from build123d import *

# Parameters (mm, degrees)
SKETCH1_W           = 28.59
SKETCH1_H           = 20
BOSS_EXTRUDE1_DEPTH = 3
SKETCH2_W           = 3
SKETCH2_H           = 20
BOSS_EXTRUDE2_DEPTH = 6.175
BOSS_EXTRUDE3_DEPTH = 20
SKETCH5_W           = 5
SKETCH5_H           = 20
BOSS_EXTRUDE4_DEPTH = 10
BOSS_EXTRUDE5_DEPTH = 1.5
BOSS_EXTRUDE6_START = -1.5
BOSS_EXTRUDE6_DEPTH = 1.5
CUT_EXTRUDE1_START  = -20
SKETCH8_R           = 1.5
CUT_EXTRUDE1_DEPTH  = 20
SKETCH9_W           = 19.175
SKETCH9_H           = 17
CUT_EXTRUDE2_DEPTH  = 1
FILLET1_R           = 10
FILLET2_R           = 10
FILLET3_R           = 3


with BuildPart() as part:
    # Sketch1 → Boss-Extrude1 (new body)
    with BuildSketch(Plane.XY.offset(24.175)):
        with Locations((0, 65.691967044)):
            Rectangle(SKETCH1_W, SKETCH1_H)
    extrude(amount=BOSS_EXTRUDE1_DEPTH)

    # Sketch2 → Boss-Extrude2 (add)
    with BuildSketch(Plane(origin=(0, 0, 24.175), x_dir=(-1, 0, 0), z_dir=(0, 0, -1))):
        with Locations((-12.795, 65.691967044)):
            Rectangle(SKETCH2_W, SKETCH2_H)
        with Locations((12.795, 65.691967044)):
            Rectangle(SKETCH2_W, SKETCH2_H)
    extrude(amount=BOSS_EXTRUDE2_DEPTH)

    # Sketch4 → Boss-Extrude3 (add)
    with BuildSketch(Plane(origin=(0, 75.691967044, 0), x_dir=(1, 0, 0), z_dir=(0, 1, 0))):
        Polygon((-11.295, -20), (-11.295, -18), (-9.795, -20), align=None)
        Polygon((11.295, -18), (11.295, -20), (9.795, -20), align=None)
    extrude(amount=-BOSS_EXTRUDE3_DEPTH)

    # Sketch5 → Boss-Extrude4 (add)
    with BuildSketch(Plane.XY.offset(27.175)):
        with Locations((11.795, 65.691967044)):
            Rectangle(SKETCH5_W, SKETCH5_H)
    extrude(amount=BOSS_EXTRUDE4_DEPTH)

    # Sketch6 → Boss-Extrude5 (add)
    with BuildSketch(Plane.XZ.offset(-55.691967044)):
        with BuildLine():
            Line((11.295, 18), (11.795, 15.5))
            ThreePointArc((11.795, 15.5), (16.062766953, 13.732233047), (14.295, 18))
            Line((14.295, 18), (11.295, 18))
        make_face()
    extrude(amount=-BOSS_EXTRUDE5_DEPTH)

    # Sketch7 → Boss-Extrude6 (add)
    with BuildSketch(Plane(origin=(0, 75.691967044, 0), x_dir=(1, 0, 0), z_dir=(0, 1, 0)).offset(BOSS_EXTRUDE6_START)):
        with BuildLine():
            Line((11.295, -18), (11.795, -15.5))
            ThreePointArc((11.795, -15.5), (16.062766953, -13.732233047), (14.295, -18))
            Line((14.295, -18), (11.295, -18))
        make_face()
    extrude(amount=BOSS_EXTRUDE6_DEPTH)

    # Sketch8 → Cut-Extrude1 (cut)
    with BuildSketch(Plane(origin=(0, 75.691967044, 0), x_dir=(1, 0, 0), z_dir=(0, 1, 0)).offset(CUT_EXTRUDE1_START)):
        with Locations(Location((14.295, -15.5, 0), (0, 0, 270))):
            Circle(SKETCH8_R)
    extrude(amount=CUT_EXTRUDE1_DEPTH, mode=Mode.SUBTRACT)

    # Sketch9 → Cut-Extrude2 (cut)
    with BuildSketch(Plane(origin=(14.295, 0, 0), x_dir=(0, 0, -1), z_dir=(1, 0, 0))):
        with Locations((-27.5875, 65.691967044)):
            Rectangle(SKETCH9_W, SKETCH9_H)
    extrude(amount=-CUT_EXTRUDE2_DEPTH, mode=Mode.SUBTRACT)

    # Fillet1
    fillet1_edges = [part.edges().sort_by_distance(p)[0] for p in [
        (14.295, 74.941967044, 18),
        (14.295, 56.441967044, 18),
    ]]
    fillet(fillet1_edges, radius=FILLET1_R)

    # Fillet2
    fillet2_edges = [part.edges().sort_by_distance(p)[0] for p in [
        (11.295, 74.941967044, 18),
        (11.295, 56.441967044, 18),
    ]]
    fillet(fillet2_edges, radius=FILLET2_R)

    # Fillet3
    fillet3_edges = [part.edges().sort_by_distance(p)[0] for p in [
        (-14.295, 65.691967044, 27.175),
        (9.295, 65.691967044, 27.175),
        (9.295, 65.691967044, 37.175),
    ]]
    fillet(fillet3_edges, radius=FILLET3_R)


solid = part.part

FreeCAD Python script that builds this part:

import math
import FreeCAD as App
import Part
import Sketcher
from FreeCAD import Vector


def edges_at(feature, points):
    """Names of the edges that pass closest to the given points."""
    edges = feature.Shape.Edges
    near = lambda p: min(range(len(edges)), key=lambda i: edges[i].distToShape(Part.Vertex(*p))[0])
    return sorted({f"Edge{near(p) + 1}" for p in points})


def add_polygon(sketch, points):
    """Adds a closed chain of lines whose ends are joined by coincident constraints."""
    first, n = sketch.GeometryCount, len(points)
    for a, b in zip(points, points[1:] + points[:1]):
        sketch.addGeometry(Part.LineSegment(App.Vector(*a, 0), App.Vector(*b, 0)), False)
    for i in range(n):
        sketch.addConstraint(Sketcher.Constraint("Coincident", first + i, 2, first + (i + 1) % n, 1))

doc = App.newDocument("Part")
params = doc.addObject("Spreadsheet::Sheet", "Params")
for row, (alias, value) in enumerate([
    ("sketch1_height", "20 mm"),
    ("sketch1_width", "28.59 mm"),
    ("pad1_length", "3 mm"),
    ("sketch2_width", "3 mm"),
    ("sketch2_height", "20 mm"),
    ("pad2_length", "6.175 mm"),
    ("sketch3_height", "2 mm"),
    ("sketch3_width", "1.5 mm"),
    ("pad3_length", "20 mm"),
    ("sketch4_width", "5 mm"),
    ("sketch4_height", "20 mm"),
    ("pad4_length", "10 mm"),
    ("sketch5_radius", "2.5 mm"),
    ("sketch5_width", "3 mm"),
    ("pad5_length", "1.5 mm"),
    ("sketch6_radius", "2.5 mm"),
    ("sketch6_width", "3 mm"),
    ("pad6_length", "1.5 mm"),
    ("sketch7_diameter", "3 mm"),
    ("pocket1_length", "20 mm"),
    ("sketch8_width", "17 mm"),
    ("pocket2_length", "1 mm"),
    ("fillet_radius", "10 mm"),
    ("fillet2_radius", "10 mm"),
    ("fillet3_radius", "3 mm"),
], start=1):
    params.set(f"A{row}", alias)
    params.set(f"B{row}", "=" + value)
    params.setAlias(f"B{row}", alias)

body = doc.addObject("PartDesign::Body", "Body")

# Sketch on XY plane
sketch1 = doc.addObject("Sketcher::SketchObject", "Sketch")
body.addObject(sketch1)
sketch1.AttachmentSupport = (doc.XY_Plane, [""])
sketch1.MapMode = "FlatFace"
sketch1.AttachmentOffset = App.Placement(Vector(0, 0, 24.175), App.Rotation())
add_polygon(sketch1, [(-14, 76), (-14, 56), (14, 56), (14, 76)])  # lines 0-3
sketch1.addConstraint(Sketcher.Constraint("Vertical", 0))
sketch1.addConstraint(Sketcher.Constraint("Horizontal", 1))
sketch1.addConstraint(Sketcher.Constraint("Vertical", 2))
sketch1.addConstraint(Sketcher.Constraint("Horizontal", 3))
sketch1.addConstraint(Sketcher.Constraint("DistanceY", 0, 2, 0, 1, 20.0))
sketch1.addConstraint(Sketcher.Constraint("DistanceX", 1, 1, 1, 2, 28.59))
sketch1.addConstraint(Sketcher.Constraint("DistanceX", 0, 2, -1, 1, 14.295))
sketch1.addConstraint(Sketcher.Constraint("DistanceY", -1, 1, 0, 2, 55.691967))
sketch1.setExpression("Constraints[8]", "Params.sketch1_height")
sketch1.setExpression("Constraints[9]", "Params.sketch1_width")
pad1 = doc.addObject("PartDesign::Pad", "Pad")
body.addObject(pad1)
pad1.Profile = sketch1
pad1.setExpression("Length", "Params.pad1_length")

# Sketch on XY plane
sketch2 = doc.addObject("Sketcher::SketchObject", "Sketch001")
body.addObject(sketch2)
sketch2.AttachmentSupport = (doc.XY_Plane, [""])
sketch2.MapMode = "FlatFace"
sketch2.AttachmentOffset = App.Placement(Vector(0, 0, 24.175), App.Rotation())
add_polygon(sketch2, [(14.3, 75.7), (14.3, 55.7), (11.3, 55.7), (11.3, 75.7)])  # lines 0-3
add_polygon(sketch2, [(-11.3, 75.7), (-11.3, 55.7), (-14.3, 55.7), (-14.3, 75.7)])  # lines 4-7
sketch2.addConstraint(Sketcher.Constraint("Vertical", 0))
sketch2.addConstraint(Sketcher.Constraint("Horizontal", 1))
sketch2.addConstraint(Sketcher.Constraint("Vertical", 2))
sketch2.addConstraint(Sketcher.Constraint("Horizontal", 3))
sketch2.addConstraint(Sketcher.Constraint("Vertical", 4))
sketch2.addConstraint(Sketcher.Constraint("Horizontal", 5))
sketch2.addConstraint(Sketcher.Constraint("Vertical", 6))
sketch2.addConstraint(Sketcher.Constraint("Horizontal", 7))
sketch2.addConstraint(Sketcher.Constraint("Symmetric", 1, 2, 4, 2, -2))
sketch2.addConstraint(Sketcher.Constraint("Symmetric", 3, 2, 6, 2, -2))
sketch2.addConstraint(Sketcher.Constraint("DistanceX", 1, 2, 1, 1, 3.0))
sketch2.addConstraint(Sketcher.Constraint("DistanceY", 0, 2, 0, 1, 20.0))
sketch2.addConstraint(Sketcher.Constraint("DistanceX", 4, 2, 1, 2, 22.59))
sketch2.addConstraint(Sketcher.Constraint("DistanceY", -1, 1, 0, 2, 55.691967))
sketch2.setExpression("Constraints[18]", "Params.sketch2_width")
sketch2.setExpression("Constraints[19]", "Params.sketch2_height")
pad2 = doc.addObject("PartDesign::Pad", "Pad001")
body.addObject(pad2)
pad2.Profile = sketch2
pad2.setExpression("Length", "Params.pad2_length")
pad2.Reversed = True

# Sketch on XZ plane
sketch3 = doc.addObject("Sketcher::SketchObject", "Sketch002")
body.addObject(sketch3)
sketch3.AttachmentSupport = (doc.XZ_Plane, [""])
sketch3.MapMode = "FlatFace"
sketch3.AttachmentOffset = App.Placement(Vector(0, 0, -75.691967), App.Rotation())
add_polygon(sketch3, [(-11.3, 18), (-11.3, 20), (-9.8, 20)])  # lines 0-2
add_polygon(sketch3, [(11.3, 20), (11.3, 18), (9.8, 20)])  # lines 3-5
sketch3.addConstraint(Sketcher.Constraint("Vertical", 0))
sketch3.addConstraint(Sketcher.Constraint("Horizontal", 1))
sketch3.addConstraint(Sketcher.Constraint("Vertical", 3))
sketch3.addConstraint(Sketcher.Constraint("Horizontal", 5))
sketch3.addConstraint(Sketcher.Constraint("Symmetric", 2, 2, 3, 2, -2))
sketch3.addConstraint(Sketcher.Constraint("Symmetric", 1, 2, 4, 2, -2))
sketch3.addConstraint(Sketcher.Constraint("DistanceY", 0, 1, 0, 2, 2.0))
sketch3.addConstraint(Sketcher.Constraint("DistanceX", 1, 1, 1, 2, 1.5))
sketch3.addConstraint(Sketcher.Constraint("DistanceY", -1, 1, 0, 2, 20.0))
sketch3.addConstraint(Sketcher.Constraint("DistanceX", 1, 2, 3, 2, 21.09))
sketch3.setExpression("Constraints[12]", "Params.sketch3_height")
sketch3.setExpression("Constraints[13]", "Params.sketch3_width")
pad3 = doc.addObject("PartDesign::Pad", "Pad002")
body.addObject(pad3)
pad3.Profile = sketch3
pad3.setExpression("Length", "Params.pad3_length")

# Sketch on XY plane
sketch4 = doc.addObject("Sketcher::SketchObject", "Sketch003")
body.addObject(sketch4)
sketch4.AttachmentSupport = (doc.XY_Plane, [""])
sketch4.MapMode = "FlatFace"
sketch4.AttachmentOffset = App.Placement(Vector(0, 0, 27.175), App.Rotation())
add_polygon(sketch4, [(9, 76), (9, 56), (14, 56), (14, 76)])  # lines 0-3
sketch4.addConstraint(Sketcher.Constraint("Vertical", 0))
sketch4.addConstraint(Sketcher.Constraint("Horizontal", 1))
sketch4.addConstraint(Sketcher.Constraint("Vertical", 2))
sketch4.addConstraint(Sketcher.Constraint("Horizontal", 3))
sketch4.addConstraint(Sketcher.Constraint("DistanceX", 1, 1, 1, 2, 5.0))
sketch4.addConstraint(Sketcher.Constraint("DistanceY", 0, 2, 0, 1, 20.0))
sketch4.addConstraint(Sketcher.Constraint("DistanceX", -1, 1, 0, 2, 9.295))
sketch4.addConstraint(Sketcher.Constraint("DistanceY", -1, 1, 0, 2, 55.691967))
sketch4.setExpression("Constraints[8]", "Params.sketch4_width")
sketch4.setExpression("Constraints[9]", "Params.sketch4_height")
pad4 = doc.addObject("PartDesign::Pad", "Pad003")
body.addObject(pad4)
pad4.Profile = sketch4
pad4.setExpression("Length", "Params.pad4_length")

# Sketch on XZ plane
sketch5 = doc.addObject("Sketcher::SketchObject", "Sketch004")
body.addObject(sketch5)
sketch5.AttachmentSupport = (doc.XZ_Plane, [""])
sketch5.MapMode = "FlatFace"
sketch5.AttachmentOffset = App.Placement(Vector(0, 0, -55.691967), App.Rotation())
sketch5.addGeometry(Part.LineSegment(Vector(11.3, 18, 0), Vector(11.8, 15.5, 0)), False)
sketch5.addGeometry(Part.ArcOfCircle(Part.Circle(Vector(14.3, 15.5, 0), Vector(0, 0, 1), 2.5), math.radians(180), math.radians(450)), False)
sketch5.addGeometry(Part.LineSegment(Vector(14.3, 18, 0), Vector(11.3, 18, 0)), False)
sketch5.addConstraint(Sketcher.Constraint("Coincident", 0, 2, 1, 1))
sketch5.addConstraint(Sketcher.Constraint("Tangent", 1, 2, 2, 1))
sketch5.addConstraint(Sketcher.Constraint("Coincident", 2, 2, 0, 1))
sketch5.addConstraint(Sketcher.Constraint("Horizontal", 2))
sketch5.addConstraint(Sketcher.Constraint("Horizontal", 1, 3, 0, 2))
sketch5.addConstraint(Sketcher.Constraint("Radius", 1, 2.5))
sketch5.addConstraint(Sketcher.Constraint("DistanceX", 2, 2, 2, 1, 3.0))
sketch5.addConstraint(Sketcher.Constraint("DistanceY", -1, 1, 1, 2, 18.0))
sketch5.addConstraint(Sketcher.Constraint("DistanceX", -1, 1, 1, 3, 14.295))
sketch5.setExpression("Constraints[5]", "Params.sketch5_radius")
sketch5.setExpression("Constraints[6]", "Params.sketch5_width")
pad5 = doc.addObject("PartDesign::Pad", "Pad004")
body.addObject(pad5)
pad5.Profile = sketch5
pad5.setExpression("Length", "Params.pad5_length")
pad5.Reversed = True

# Sketch on XZ plane
sketch6 = doc.addObject("Sketcher::SketchObject", "Sketch005")
body.addObject(sketch6)
sketch6.AttachmentSupport = (doc.XZ_Plane, [""])
sketch6.MapMode = "FlatFace"
sketch6.AttachmentOffset = App.Placement(Vector(0, 0, -74.191967), App.Rotation())
sketch6.addGeometry(Part.LineSegment(Vector(11.8, 15.5, 0), Vector(11.3, 18, 0)), False)
sketch6.addGeometry(Part.LineSegment(Vector(11.3, 18, 0), Vector(14.3, 18, 0)), False)
sketch6.addGeometry(Part.ArcOfCircle(Part.Circle(Vector(14.3, 15.5, 0), Vector(0, 0, 1), 2.5), math.radians(180), math.radians(450)), False)
sketch6.addConstraint(Sketcher.Constraint("Coincident", 0, 2, 1, 1))
sketch6.addConstraint(Sketcher.Constraint("Tangent", 1, 2, 2, 2))
sketch6.addConstraint(Sketcher.Constraint("Coincident", 2, 1, 0, 1))
sketch6.addConstraint(Sketcher.Constraint("Horizontal", 1))
sketch6.addConstraint(Sketcher.Constraint("Radius", 2, 2.5))
sketch6.addConstraint(Sketcher.Constraint("DistanceX", 1, 1, 1, 2, 3.0))
sketch6.addConstraint(Sketcher.Constraint("DistanceY", -1, 1, 0, 2, 18.0))
sketch6.addConstraint(Sketcher.Constraint("DistanceY", -1, 1, 2, 1, 15.5))
sketch6.addConstraint(Sketcher.Constraint("DistanceX", -1, 1, 2, 3, 14.295))
sketch6.setExpression("Constraints[4]", "Params.sketch6_radius")
sketch6.setExpression("Constraints[5]", "Params.sketch6_width")
pad6 = doc.addObject("PartDesign::Pad", "Pad005")
body.addObject(pad6)
pad6.Profile = sketch6
pad6.setExpression("Length", "Params.pad6_length")
pad6.Reversed = True

# Sketch on XZ plane
sketch7 = doc.addObject("Sketcher::SketchObject", "Sketch006")
body.addObject(sketch7)
sketch7.AttachmentSupport = (doc.XZ_Plane, [""])
sketch7.MapMode = "FlatFace"
sketch7.AttachmentOffset = App.Placement(Vector(0, 0, -55.691967), App.Rotation())
sketch7.addGeometry(Part.Circle(Vector(14.3, 15.5, 0), Vector(0, 0, 1), 1.5), False)
sketch7.addConstraint(Sketcher.Constraint("Diameter", 0, 3.0))
sketch7.addConstraint(Sketcher.Constraint("DistanceY", -1, 1, 0, 3, 15.5))
sketch7.addConstraint(Sketcher.Constraint("DistanceX", -1, 1, 0, 3, 14.295))
sketch7.setExpression("Constraints[0]", "Params.sketch7_diameter")
pocket1 = doc.addObject("PartDesign::Pocket", "Pocket")
body.addObject(pocket1)
pocket1.Profile = sketch7
pocket1.setExpression("Length", "Params.pocket1_length")

# Sketch on YZ plane
sketch8 = doc.addObject("Sketcher::SketchObject", "Sketch007")
body.addObject(sketch8)
sketch8.AttachmentSupport = (doc.YZ_Plane, [""])
sketch8.MapMode = "FlatFace"
sketch8.AttachmentOffset = App.Placement(Vector(0, 0, 14.295), App.Rotation())
add_polygon(sketch8, [(74, 37), (57, 37), (57, 18), (74, 18)])  # lines 0-3
sketch8.addConstraint(Sketcher.Constraint("Horizontal", 0))
sketch8.addConstraint(Sketcher.Constraint("Vertical", 1))
sketch8.addConstraint(Sketcher.Constraint("Horizontal", 2))
sketch8.addConstraint(Sketcher.Constraint("Vertical", 3))
sketch8.addConstraint(Sketcher.Constraint("DistanceX", 0, 2, 0, 1, 17.0))
sketch8.addConstraint(Sketcher.Constraint("DistanceY", -1, 1, 1, 2, 18.0))
sketch8.addConstraint(Sketcher.Constraint("DistanceY", 1, 2, 1, 1, 19.175))
sketch8.addConstraint(Sketcher.Constraint("DistanceX", -1, 1, 0, 2, 57.191967))
sketch8.setExpression("Constraints[8]", "Params.sketch8_width")
pocket2 = doc.addObject("PartDesign::Pocket", "Pocket001")
body.addObject(pocket2)
pocket2.Profile = sketch8
pocket2.setExpression("Length", "Params.pocket2_length")
doc.recompute()

fillet = doc.addObject("PartDesign::Fillet", "Fillet")
body.addObject(fillet)
fillet.Base = (pocket2, edges_at(pocket2, [(14.295, 74.942, 18), (14.295, 56.442, 18)]))
fillet.setExpression("Radius", "Params.fillet_radius")
doc.recompute()

fillet2 = doc.addObject("PartDesign::Fillet", "Fillet001")
body.addObject(fillet2)
fillet2.Base = (fillet, edges_at(fillet, [(11.295, 74.942, 18), (11.295, 56.442, 18)]))
fillet2.setExpression("Radius", "Params.fillet2_radius")
doc.recompute()

fillet3 = doc.addObject("PartDesign::Fillet", "Fillet002")
body.addObject(fillet3)
fillet3.Base = (fillet2, edges_at(fillet2, [(-14.295, 65.692, 27.175), (9.295, 65.692, 27.175), (9.295, 65.692, 37.175)]))
fillet3.setExpression("Radius", "Params.fillet3_radius")

doc.recompute()
